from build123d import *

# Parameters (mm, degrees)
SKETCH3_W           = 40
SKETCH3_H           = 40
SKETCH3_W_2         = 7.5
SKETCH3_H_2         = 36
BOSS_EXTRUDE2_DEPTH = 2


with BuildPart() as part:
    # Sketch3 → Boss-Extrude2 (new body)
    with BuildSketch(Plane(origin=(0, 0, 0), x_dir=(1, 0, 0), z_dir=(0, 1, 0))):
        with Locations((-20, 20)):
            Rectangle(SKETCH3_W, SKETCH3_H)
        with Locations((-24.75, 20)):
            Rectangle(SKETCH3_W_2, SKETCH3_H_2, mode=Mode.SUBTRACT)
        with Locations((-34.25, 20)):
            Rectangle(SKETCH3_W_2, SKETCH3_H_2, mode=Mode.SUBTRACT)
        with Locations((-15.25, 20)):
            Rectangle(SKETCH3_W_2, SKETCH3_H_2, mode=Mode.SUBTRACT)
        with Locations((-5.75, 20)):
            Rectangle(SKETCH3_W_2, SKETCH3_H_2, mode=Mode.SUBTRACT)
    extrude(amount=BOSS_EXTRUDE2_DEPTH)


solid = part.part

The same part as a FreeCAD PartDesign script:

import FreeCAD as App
import Part
import Sketcher

V = App.Vector
Q = App.Units.Quantity

doc = App.newDocument("Part")
body = doc.addObject("PartDesign::Body", "Body")

# Sketch on XZ plane
sketch1 = doc.addObject("Sketcher::SketchObject", "Sketch")
body.addObject(sketch1)
sketch1.AttachmentSupport = (doc.XZ_Plane, [""])
sketch1.MapMode = "FlatFace"
sketch1.addGeometry(Part.LineSegment(V(-40, -40, 0), V(-40, 0, 0)), False)
sketch1.addGeometry(Part.LineSegment(V(-40, 0, 0), V(0, 0, 0)), False)
sketch1.addGeometry(Part.LineSegment(V(0, 0, 0), V(0, -40, 0)), False)
sketch1.addGeometry(Part.LineSegment(V(0, -40, 0), V(-40, -40, 0)), False)
sketch1.addGeometry(Part.LineSegment(V(-30, -2, 0), V(-38, -2, 0)), False)
sketch1.addGeometry(Part.LineSegment(V(-38, -2, 0), V(-38, -38, 0)), False)
sketch1.addGeometry(Part.LineSegment(V(-38, -38, 0), V(-30, -38, 0)), False)
sketch1.addGeometry(Part.LineSegment(V(-30, -38, 0), V(-30, -2, 0)), False)
sketch1.addGeometry(Part.LineSegment(V(-21, -2, 0), V(-28, -2, 0)), False)
sketch1.addGeometry(Part.LineSegment(V(-28, -2, 0), V(-28, -38, 0)), False)
sketch1.addGeometry(Part.LineSegment(V(-28, -38, 0), V(-21, -38, 0)), False)
sketch1.addGeometry(Part.LineSegment(V(-21, -38, 0), V(-21, -2, 0)), False)
sketch1.addGeometry(Part.LineSegment(V(-12, -2, 0), V(-19, -2, 0)), False)
sketch1.addGeometry(Part.LineSegment(V(-19, -2, 0), V(-19, -38, 0)), False)
sketch1.addGeometry(Part.LineSegment(V(-19, -38, 0), V(-12, -38, 0)), False)
sketch1.addGeometry(Part.LineSegment(V(-12, -38, 0), V(-12, -2, 0)), False)
sketch1.addGeometry(Part.LineSegment(V(-2, -2, 0), V(-10, -2, 0)), False)
sketch1.addGeometry(Part.LineSegment(V(-10, -2, 0), V(-10, -38, 0)), False)
sketch1.addGeometry(Part.LineSegment(V(-10, -38, 0), V(-2, -38, 0)), False)
sketch1.addGeometry(Part.LineSegment(V(-2, -38, 0), V(-2, -2, 0)), False)
sketch1.addConstraint(Sketcher.Constraint("Coincident", 0, 2, 1, 1))
sketch1.addConstraint(Sketcher.Constraint("Coincident", 1, 2, 2, 1))
sketch1.addConstraint(Sketcher.Constraint("Coincident", 2, 2, 3, 1))
sketch1.addConstraint(Sketcher.Constraint("Coincident", 3, 2, 0, 1))
sketch1.addConstraint(Sketcher.Constraint("Coincident", 4, 2, 5, 1))
sketch1.addConstraint(Sketcher.Constraint("Coincident", 5, 2, 6, 1))
sketch1.addConstraint(Sketcher.Constraint("Coincident", 6, 2, 7, 1))
sketch1.addConstraint(Sketcher.Constraint("Coincident", 7, 2, 4, 1))
sketch1.addConstraint(Sketcher.Constraint("Coincident", 8, 2, 9, 1))
sketch1.addConstraint(Sketcher.Constraint("Coincident", 9, 2, 10, 1))
sketch1.addConstraint(Sketcher.Constraint("Coincident", 10, 2, 11, 1))
sketch1.addConstraint(Sketcher.Constraint("Coincident", 11, 2, 8, 1))
sketch1.addConstraint(Sketcher.Constraint("Coincident", 12, 2, 13, 1))
sketch1.addConstraint(Sketcher.Constraint("Coincident", 13, 2, 14, 1))
sketch1.addConstraint(Sketcher.Constraint("Coincident", 14, 2, 15, 1))
sketch1.addConstraint(Sketcher.Constraint("Coincident", 15, 2, 12, 1))
sketch1.addConstraint(Sketcher.Constraint("Coincident", 16, 2, 17, 1))
sketch1.addConstraint(Sketcher.Constraint("Coincident", 17, 2, 18, 1))
sketch1.addConstraint(Sketcher.Constraint("Coincident", 18, 2, 19, 1))
sketch1.addConstraint(Sketcher.Constraint("Coincident", 19, 2, 16, 1))
sketch1.addConstraint(Sketcher.Constraint("Vertical", 0))
sketch1.addConstraint(Sketcher.Constraint("Horizontal", 1))
sketch1.addConstraint(Sketcher.Constraint("Vertical", 2))
sketch1.addConstraint(Sketcher.Constraint("Horizontal", 3))
sketch1.addConstraint(Sketcher.Constraint("Horizontal", 4))
sketch1.addConstraint(Sketcher.Constraint("Vertical", 5))
sketch1.addConstraint(Sketcher.Constraint("Horizontal", 6))
sketch1.addConstraint(Sketcher.Constraint("Vertical", 7))
sketch1.addConstraint(Sketcher.Constraint("Horizontal", 8))
sketch1.addConstraint(Sketcher.Constraint("Vertical", 9))
sketch1.addConstraint(Sketcher.Constraint("Horizontal", 10))
sketch1.addConstraint(Sketcher.Constraint("Vertical", 11))
sketch1.addConstraint(Sketcher.Constraint("Horizontal", 12))
sketch1.addConstraint(Sketcher.Constraint("Vertical", 13))
sketch1.addConstraint(Sketcher.Constraint("Horizontal", 14))
sketch1.addConstraint(Sketcher.Constraint("Vertical", 15))
sketch1.addConstraint(Sketcher.Constraint("Horizontal", 16))
sketch1.addConstraint(Sketcher.Constraint("Vertical", 17))
sketch1.addConstraint(Sketcher.Constraint("Horizontal", 18))
sketch1.addConstraint(Sketcher.Constraint("Vertical", 19))
sketch1.addConstraint(Sketcher.Constraint("Coincident", 1, 2, -1, 1))
sketch1.addConstraint(Sketcher.Constraint("Horizontal", 7, 2, 8, 2))
sketch1.addConstraint(Sketcher.Constraint("Horizontal", 6, 2, 9, 2))
sketch1.addConstraint(Sketcher.Constraint("Horizontal", 11, 2, 12, 2))
sketch1.addConstraint(Sketcher.Constraint("Horizontal", 10, 2, 13, 2))
sketch1.addConstraint(Sketcher.Constraint("Horizontal", 15, 2, 16, 2))
sketch1.addConstraint(Sketcher.Constraint("Horizontal", 14, 2, 17, 2))
sketch1.addConstraint(Sketcher.Constraint("Equal", 6, 8))
sketch1.addConstraint(Sketcher.Constraint("Equal", 10, 12))
sketch1.addConstraint(Sketcher.Constraint("Equal", 14, 16))
sketch1.addConstraint(Sketcher.Constraint("Equal", 3, 0))
sketch1.addConstraint(Sketcher.Constraint("DistanceX", 1, 1, 1, 2, Q("40 mm")))
sketch1.addConstraint(Sketcher.Constraint("DistanceY", 5, 2, 5, 1, Q("36 mm")))
sketch1.addConstraint(Sketcher.Constraint("DistanceX", 4, 2, 4, 1, Q("7.5 mm")))
sketch1.addConstraint(Sketcher.Constraint("DistanceX", 4, 2, -1, 1, Q("38 mm")))
sketch1.addConstraint(Sketcher.Constraint("DistanceY", 4, 2, -1, 1, Q("2 mm")))
sketch1.addConstraint(Sketcher.Constraint("DistanceX", 10, 2, -1, 1, Q("21 mm")))
sketch1.addConstraint(Sketcher.Constraint("DistanceX", 12, 2, -1, 1, Q("19 mm")))
sketch1.addConstraint(Sketcher.Constraint("DistanceX", 18, 2, -1, 1, Q("2 mm")))
pad1 = doc.addObject("PartDesign::Pad", "Pad")
body.addObject(pad1)
pad1.Profile = sketch1
pad1.Length = 2
pad1.Reversed = True

doc.recompute()
